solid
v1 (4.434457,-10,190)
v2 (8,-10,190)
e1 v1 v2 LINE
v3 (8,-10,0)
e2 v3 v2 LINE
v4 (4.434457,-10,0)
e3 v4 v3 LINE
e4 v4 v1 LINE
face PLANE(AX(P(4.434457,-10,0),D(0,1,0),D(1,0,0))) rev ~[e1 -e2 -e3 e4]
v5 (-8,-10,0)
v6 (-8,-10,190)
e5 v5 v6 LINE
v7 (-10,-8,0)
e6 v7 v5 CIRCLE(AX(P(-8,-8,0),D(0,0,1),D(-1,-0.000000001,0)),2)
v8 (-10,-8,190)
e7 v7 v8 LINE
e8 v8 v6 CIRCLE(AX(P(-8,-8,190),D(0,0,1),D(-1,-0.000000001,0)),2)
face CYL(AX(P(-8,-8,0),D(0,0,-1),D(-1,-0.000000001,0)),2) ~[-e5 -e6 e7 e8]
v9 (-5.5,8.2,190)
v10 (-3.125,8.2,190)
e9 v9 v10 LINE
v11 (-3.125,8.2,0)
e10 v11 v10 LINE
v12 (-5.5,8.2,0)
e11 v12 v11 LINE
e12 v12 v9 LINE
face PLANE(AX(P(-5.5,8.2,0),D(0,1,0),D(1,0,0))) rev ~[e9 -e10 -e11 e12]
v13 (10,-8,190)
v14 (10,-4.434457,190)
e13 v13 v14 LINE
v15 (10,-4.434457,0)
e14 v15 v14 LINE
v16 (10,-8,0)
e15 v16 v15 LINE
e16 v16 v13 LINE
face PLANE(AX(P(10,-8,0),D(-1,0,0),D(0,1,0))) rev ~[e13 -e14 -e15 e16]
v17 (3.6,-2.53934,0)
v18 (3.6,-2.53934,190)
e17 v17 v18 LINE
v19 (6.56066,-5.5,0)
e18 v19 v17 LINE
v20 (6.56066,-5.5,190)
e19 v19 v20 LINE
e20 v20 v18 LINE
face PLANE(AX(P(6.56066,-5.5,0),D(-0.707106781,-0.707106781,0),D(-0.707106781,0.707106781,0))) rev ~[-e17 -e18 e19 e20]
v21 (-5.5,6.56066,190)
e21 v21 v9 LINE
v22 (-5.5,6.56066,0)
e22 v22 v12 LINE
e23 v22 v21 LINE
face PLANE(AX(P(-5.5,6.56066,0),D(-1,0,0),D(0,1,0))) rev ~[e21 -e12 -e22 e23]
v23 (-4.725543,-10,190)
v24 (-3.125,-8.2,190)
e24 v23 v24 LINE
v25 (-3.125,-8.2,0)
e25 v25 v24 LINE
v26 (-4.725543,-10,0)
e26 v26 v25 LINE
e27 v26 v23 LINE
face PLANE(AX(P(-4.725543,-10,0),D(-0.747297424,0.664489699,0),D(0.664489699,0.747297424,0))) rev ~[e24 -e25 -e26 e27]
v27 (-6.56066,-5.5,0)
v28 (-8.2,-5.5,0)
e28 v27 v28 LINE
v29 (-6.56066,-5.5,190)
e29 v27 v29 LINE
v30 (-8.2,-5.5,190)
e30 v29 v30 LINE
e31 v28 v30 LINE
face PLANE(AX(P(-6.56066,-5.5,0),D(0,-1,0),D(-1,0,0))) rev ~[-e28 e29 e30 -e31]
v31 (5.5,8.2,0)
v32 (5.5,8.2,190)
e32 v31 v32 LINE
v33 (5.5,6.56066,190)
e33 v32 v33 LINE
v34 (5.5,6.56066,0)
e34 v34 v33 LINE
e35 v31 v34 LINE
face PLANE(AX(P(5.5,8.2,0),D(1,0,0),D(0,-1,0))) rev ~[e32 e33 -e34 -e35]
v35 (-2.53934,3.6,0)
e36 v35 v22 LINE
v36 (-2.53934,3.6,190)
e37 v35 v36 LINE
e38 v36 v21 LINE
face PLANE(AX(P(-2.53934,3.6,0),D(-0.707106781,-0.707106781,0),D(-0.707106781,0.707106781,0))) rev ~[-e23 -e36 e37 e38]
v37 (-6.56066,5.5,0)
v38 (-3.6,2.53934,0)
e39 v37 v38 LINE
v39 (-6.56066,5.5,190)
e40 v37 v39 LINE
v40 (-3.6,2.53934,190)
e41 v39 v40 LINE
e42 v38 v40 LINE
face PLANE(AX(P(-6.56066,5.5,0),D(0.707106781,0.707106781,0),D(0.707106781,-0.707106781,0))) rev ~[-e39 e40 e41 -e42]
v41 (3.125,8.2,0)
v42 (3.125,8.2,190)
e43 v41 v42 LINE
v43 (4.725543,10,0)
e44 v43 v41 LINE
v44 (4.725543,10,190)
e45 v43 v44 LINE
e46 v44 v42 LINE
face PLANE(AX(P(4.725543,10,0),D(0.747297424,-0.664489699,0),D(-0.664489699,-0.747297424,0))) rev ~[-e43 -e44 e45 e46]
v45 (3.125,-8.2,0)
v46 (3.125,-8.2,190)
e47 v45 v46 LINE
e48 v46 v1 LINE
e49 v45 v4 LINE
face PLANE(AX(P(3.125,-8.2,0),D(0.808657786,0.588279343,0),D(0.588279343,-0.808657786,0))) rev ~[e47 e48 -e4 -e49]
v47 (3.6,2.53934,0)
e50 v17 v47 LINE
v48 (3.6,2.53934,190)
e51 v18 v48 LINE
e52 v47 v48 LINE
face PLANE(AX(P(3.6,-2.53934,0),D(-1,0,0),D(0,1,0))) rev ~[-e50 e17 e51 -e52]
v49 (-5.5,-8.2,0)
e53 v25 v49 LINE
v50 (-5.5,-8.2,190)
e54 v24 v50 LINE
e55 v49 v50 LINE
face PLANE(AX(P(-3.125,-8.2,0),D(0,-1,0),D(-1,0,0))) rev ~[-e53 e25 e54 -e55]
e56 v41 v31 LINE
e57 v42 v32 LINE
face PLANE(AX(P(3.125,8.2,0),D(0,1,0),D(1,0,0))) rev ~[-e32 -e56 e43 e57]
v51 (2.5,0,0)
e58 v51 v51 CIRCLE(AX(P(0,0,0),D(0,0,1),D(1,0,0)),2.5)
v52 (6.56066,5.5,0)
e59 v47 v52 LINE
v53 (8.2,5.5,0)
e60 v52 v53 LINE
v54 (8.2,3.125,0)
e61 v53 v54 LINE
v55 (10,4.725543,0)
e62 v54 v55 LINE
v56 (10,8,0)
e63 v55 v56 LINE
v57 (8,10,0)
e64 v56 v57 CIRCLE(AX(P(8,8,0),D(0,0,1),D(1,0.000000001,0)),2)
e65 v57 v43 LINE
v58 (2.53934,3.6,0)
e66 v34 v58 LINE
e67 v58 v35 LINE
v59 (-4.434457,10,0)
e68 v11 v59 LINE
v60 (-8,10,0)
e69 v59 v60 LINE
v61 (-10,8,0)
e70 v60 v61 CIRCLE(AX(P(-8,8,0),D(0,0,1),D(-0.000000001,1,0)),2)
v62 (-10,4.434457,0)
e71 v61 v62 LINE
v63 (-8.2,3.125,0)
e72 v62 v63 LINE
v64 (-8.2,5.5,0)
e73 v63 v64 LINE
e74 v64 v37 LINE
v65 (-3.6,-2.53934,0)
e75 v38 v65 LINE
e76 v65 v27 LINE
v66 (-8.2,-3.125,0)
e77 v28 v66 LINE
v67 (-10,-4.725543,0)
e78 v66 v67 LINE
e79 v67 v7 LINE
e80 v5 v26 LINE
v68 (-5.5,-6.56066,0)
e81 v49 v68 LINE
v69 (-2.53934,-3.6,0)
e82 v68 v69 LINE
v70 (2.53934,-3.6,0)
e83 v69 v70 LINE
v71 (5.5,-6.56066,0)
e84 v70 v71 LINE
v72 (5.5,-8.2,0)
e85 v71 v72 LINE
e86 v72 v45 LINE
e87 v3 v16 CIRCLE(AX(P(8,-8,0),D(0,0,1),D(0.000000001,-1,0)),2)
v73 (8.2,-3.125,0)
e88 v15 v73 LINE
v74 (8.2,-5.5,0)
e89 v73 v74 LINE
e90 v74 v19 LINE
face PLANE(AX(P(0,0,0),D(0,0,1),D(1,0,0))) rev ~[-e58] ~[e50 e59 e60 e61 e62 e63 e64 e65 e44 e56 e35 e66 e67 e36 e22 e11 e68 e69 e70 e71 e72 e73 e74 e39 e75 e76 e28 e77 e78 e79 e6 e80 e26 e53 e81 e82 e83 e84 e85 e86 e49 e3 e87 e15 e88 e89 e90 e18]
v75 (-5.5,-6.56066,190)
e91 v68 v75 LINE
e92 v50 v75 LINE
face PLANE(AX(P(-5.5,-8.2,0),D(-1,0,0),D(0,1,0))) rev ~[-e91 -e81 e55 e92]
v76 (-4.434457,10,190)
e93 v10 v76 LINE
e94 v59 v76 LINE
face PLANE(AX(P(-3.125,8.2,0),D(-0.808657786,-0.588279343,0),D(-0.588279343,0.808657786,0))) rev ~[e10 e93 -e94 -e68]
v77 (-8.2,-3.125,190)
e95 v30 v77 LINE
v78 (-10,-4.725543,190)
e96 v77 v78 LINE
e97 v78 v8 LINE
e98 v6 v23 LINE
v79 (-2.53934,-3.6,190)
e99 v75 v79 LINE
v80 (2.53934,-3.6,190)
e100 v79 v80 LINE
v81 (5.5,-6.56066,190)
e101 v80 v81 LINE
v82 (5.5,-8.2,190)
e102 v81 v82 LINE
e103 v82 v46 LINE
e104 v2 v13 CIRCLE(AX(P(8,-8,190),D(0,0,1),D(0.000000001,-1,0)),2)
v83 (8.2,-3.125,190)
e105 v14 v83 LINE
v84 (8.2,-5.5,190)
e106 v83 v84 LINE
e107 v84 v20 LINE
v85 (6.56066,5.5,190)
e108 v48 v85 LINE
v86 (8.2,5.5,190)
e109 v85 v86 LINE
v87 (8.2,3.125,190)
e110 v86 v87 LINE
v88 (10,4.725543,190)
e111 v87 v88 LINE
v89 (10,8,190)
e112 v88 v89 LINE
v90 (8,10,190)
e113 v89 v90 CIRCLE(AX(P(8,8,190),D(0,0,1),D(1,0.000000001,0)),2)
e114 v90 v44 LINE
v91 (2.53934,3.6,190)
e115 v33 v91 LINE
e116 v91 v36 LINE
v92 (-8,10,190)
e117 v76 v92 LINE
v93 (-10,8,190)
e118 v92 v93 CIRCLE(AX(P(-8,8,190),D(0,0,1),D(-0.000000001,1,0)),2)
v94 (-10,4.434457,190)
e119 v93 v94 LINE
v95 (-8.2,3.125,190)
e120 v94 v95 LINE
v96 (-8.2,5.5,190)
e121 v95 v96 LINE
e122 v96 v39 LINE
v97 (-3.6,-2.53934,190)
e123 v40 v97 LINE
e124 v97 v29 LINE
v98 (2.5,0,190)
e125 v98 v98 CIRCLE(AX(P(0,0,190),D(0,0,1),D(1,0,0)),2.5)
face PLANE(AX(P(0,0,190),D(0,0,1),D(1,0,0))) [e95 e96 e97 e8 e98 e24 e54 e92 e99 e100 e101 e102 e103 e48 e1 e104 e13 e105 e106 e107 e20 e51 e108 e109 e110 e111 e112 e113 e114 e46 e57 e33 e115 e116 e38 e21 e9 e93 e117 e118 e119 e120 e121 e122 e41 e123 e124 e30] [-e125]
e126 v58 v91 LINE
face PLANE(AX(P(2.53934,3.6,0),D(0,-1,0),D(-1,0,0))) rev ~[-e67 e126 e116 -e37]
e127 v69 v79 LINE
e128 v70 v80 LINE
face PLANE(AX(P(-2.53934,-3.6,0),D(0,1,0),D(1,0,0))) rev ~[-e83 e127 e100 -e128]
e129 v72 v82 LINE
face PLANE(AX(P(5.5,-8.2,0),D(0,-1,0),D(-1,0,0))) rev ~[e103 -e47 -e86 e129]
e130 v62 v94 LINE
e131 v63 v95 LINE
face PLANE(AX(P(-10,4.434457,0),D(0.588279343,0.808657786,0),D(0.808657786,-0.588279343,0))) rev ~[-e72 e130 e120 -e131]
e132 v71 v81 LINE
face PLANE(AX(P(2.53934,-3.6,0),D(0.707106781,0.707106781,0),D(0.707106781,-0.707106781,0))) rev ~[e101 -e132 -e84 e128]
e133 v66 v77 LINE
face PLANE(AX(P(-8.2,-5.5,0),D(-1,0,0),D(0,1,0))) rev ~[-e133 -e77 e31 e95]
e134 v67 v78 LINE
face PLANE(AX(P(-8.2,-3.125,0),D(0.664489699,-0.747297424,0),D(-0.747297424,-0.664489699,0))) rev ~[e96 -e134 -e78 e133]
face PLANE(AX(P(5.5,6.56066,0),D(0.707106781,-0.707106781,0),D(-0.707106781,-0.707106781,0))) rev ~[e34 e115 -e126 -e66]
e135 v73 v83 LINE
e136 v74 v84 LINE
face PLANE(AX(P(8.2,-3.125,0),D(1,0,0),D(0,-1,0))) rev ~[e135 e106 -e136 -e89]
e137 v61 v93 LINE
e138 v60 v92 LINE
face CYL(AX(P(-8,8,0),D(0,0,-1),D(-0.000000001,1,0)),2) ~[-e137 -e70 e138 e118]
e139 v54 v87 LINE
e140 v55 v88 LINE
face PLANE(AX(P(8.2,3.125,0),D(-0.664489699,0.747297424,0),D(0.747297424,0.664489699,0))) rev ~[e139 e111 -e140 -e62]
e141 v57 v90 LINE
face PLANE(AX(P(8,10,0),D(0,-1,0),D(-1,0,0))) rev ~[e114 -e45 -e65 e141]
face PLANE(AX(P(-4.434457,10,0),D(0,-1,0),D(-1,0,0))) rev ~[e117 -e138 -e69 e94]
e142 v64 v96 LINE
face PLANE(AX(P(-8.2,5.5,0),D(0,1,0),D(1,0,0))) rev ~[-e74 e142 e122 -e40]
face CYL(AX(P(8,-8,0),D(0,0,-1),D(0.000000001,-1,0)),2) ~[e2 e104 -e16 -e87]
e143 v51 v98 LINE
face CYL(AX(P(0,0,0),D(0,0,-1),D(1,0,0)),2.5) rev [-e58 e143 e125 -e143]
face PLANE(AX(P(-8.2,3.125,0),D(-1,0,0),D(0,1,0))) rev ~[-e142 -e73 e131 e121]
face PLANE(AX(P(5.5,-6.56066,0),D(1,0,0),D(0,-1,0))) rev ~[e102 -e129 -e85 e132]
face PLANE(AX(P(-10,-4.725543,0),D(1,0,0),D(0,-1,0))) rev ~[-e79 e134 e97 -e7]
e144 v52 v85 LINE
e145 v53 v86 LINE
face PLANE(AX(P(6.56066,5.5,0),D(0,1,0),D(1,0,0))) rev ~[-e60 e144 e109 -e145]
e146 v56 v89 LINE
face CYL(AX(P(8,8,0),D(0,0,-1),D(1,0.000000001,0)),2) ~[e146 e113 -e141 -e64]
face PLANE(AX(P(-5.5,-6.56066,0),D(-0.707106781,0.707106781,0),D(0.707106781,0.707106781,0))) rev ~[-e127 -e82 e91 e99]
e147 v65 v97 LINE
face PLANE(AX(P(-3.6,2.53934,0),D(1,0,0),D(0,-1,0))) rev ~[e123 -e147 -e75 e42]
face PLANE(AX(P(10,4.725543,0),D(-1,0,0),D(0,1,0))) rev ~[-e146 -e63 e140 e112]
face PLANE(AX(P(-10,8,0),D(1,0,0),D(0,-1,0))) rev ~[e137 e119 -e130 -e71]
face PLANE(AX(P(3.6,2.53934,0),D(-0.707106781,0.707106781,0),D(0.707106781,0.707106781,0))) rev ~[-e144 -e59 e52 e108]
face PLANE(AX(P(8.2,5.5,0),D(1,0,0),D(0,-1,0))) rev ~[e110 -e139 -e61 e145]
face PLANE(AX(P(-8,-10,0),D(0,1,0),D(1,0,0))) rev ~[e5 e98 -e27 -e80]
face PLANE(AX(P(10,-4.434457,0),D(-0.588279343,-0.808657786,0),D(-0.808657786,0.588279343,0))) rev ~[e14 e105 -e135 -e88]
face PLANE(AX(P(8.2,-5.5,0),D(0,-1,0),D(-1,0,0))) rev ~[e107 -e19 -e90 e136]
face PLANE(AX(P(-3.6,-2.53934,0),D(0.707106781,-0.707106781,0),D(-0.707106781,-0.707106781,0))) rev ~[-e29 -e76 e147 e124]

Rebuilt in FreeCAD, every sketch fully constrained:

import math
import FreeCAD as App
import Part
import Sketcher
from FreeCAD import Vector
Q = App.Units.Quantity

doc = App.newDocument("Part")
body = doc.addObject("PartDesign::Body", "Body")

sketch1 = body.newObject("Sketcher::SketchObject", "Sketch")
sketch1.AttachmentSupport = (doc.getObject("XY_Plane"), [""])
sketch1.MapMode = "FlatFace"
sketch1.addGeometry([
    Part.LineSegment(Vector(-4.7, -10, 0), Vector(-3.1, -8.2, 0)),
    Part.LineSegment(Vector(-3.1, -8.2, 0), Vector(-5.5, -8.2, 0)),
    Part.LineSegment(Vector(-5.5, -8.2, 0), Vector(-5.5, -6.6, 0)),
    Part.LineSegment(Vector(-5.5, -6.6, 0), Vector(-2.5, -3.6, 0)),
    Part.LineSegment(Vector(-2.5, -3.6, 0), Vector(2.5, -3.6, 0)),
    Part.LineSegment(Vector(2.5, -3.6, 0), Vector(5.5, -6.6, 0)),
    Part.LineSegment(Vector(5.5, -6.6, 0), Vector(5.5, -8.2, 0)),
    Part.LineSegment(Vector(5.5, -8.2, 0), Vector(3.1, -8.2, 0)),
    Part.LineSegment(Vector(3.1, -8.2, 0), Vector(4.4, -10, 0)),
    Part.LineSegment(Vector(4.4, -10, 0), Vector(8, -10, 0)),
    Part.ArcOfCircle(Part.Circle(Vector(8, -8, 0), Vector(0, 0, 1), 2), math.radians(-90), math.radians(0)),
    Part.LineSegment(Vector(10, -8, 0), Vector(10, -4.4, 0)),
    Part.LineSegment(Vector(10, -4.4, 0), Vector(8.2, -3.1, 0)),
    Part.LineSegment(Vector(8.2, -3.1, 0), Vector(8.2, -5.5, 0)),
    Part.LineSegment(Vector(8.2, -5.5, 0), Vector(6.6, -5.5, 0)),
    Part.LineSegment(Vector(6.6, -5.5, 0), Vector(3.6, -2.5, 0)),
    Part.LineSegment(Vector(3.6, -2.5, 0), Vector(3.6, 2.5, 0)),
    Part.LineSegment(Vector(3.6, 2.5, 0), Vector(6.6, 5.5, 0)),
    Part.LineSegment(Vector(6.6, 5.5, 0), Vector(8.2, 5.5, 0)),
    Part.LineSegment(Vector(8.2, 5.5, 0), Vector(8.2, 3.1, 0)),
    Part.LineSegment(Vector(8.2, 3.1, 0), Vector(10, 4.7, 0)),
    Part.LineSegment(Vector(10, 4.7, 0), Vector(10, 8, 0)),
    Part.ArcOfCircle(Part.Circle(Vector(8, 8, 0), Vector(0, 0, 1), 2), math.radians(0), math.radians(90)),
    Part.LineSegment(Vector(8, 10, 0), Vector(4.7, 10, 0)),
    Part.LineSegment(Vector(4.7, 10, 0), Vector(3.1, 8.2, 0)),
    Part.LineSegment(Vector(3.1, 8.2, 0), Vector(5.5, 8.2, 0)),
    Part.LineSegment(Vector(5.5, 8.2, 0), Vector(5.5, 6.6, 0)),
    Part.LineSegment(Vector(5.5, 6.6, 0), Vector(2.5, 3.6, 0)),
    Part.LineSegment(Vector(2.5, 3.6, 0), Vector(-2.5, 3.6, 0)),
    Part.LineSegment(Vector(-2.5, 3.6, 0), Vector(-5.5, 6.6, 0)),
    Part.LineSegment(Vector(-5.5, 6.6, 0), Vector(-5.5, 8.2, 0)),
    Part.LineSegment(Vector(-5.5, 8.2, 0), Vector(-3.1, 8.2, 0)),
    Part.LineSegment(Vector(-3.1, 8.2, 0), Vector(-4.4, 10, 0)),
    Part.LineSegment(Vector(-4.4, 10, 0), Vector(-8, 10, 0)),
    Part.ArcOfCircle(Part.Circle(Vector(-8, 8, 0), Vector(0, 0, 1), 2), math.radians(90), math.radians(180)),
    Part.LineSegment(Vector(-10, 8, 0), Vector(-10, 4.4, 0)),
    Part.LineSegment(Vector(-10, 4.4, 0), Vector(-8.2, 3.1, 0)),
    Part.LineSegment(Vector(-8.2, 3.1, 0), Vector(-8.2, 5.5, 0)),
    Part.LineSegment(Vector(-8.2, 5.5, 0), Vector(-6.6, 5.5, 0)),
    Part.LineSegment(Vector(-6.6, 5.5, 0), Vector(-3.6, 2.5, 0)),
    Part.LineSegment(Vector(-3.6, 2.5, 0), Vector(-3.6, -2.5, 0)),
    Part.LineSegment(Vector(-3.6, -2.5, 0), Vector(-6.6, -5.5, 0)),
    Part.LineSegment(Vector(-6.6, -5.5, 0), Vector(-8.2, -5.5, 0)),
    Part.LineSegment(Vector(-8.2, -5.5, 0), Vector(-8.2, -3.1, 0)),
    Part.LineSegment(Vector(-8.2, -3.1, 0), Vector(-10, -4.7, 0)),
    Part.LineSegment(Vector(-10, -4.7, 0), Vector(-10, -8, 0)),
    Part.ArcOfCircle(Part.Circle(Vector(-8, -8, 0), Vector(0, 0, 1), 2), math.radians(-180), math.radians(-90)),
    Part.LineSegment(Vector(-8, -10, 0), Vector(-4.7, -10, 0)),
    Part.Circle(Vector(0, 0, 0), Vector(0, 0, 1), 2.5),
], False)
sketch1.addConstraint([
    Sketcher.Constraint("Coincident", 0, 2, 1, 1),
    Sketcher.Constraint("Coincident", 1, 2, 2, 1),
    Sketcher.Constraint("Coincident", 2, 2, 3, 1),
    Sketcher.Constraint("Coincident", 3, 2, 4, 1),
    Sketcher.Constraint("Coincident", 4, 2, 5, 1),
    Sketcher.Constraint("Coincident", 5, 2, 6, 1),
    Sketcher.Constraint("Coincident", 6, 2, 7, 1),
    Sketcher.Constraint("Coincident", 7, 2, 8, 1),
    Sketcher.Constraint("Coincident", 8, 2, 9, 1),
    Sketcher.Constraint("Tangent", 9, 2, 10, 1),
    Sketcher.Constraint("Tangent", 10, 2, 11, 1),
    Sketcher.Constraint("Coincident", 11, 2, 12, 1),
    Sketcher.Constraint("Coincident", 12, 2, 13, 1),
    Sketcher.Constraint("Coincident", 13, 2, 14, 1),
    Sketcher.Constraint("Coincident", 14, 2, 15, 1),
    Sketcher.Constraint("Coincident", 15, 2, 16, 1),
    Sketcher.Constraint("Coincident", 16, 2, 17, 1),
    Sketcher.Constraint("Coincident", 17, 2, 18, 1),
    Sketcher.Constraint("Coincident", 18, 2, 19, 1),
    Sketcher.Constraint("Coincident", 19, 2, 20, 1),
    Sketcher.Constraint("Coincident", 20, 2, 21, 1),
    Sketcher.Constraint("Tangent", 21, 2, 22, 1),
    Sketcher.Constraint("Tangent", 22, 2, 23, 1),
    Sketcher.Constraint("Coincident", 23, 2, 24, 1),
    Sketcher.Constraint("Coincident", 24, 2, 25, 1),
    Sketcher.Constraint("Coincident", 25, 2, 26, 1),
    Sketcher.Constraint("Coincident", 26, 2, 27, 1),
    Sketcher.Constraint("Coincident", 27, 2, 28, 1),
    Sketcher.Constraint("Coincident", 28, 2, 29, 1),
    Sketcher.Constraint("Coincident", 29, 2, 30, 1),
    Sketcher.Constraint("Coincident", 30, 2, 31, 1),
    Sketcher.Constraint("Coincident", 31, 2, 32, 1),
    Sketcher.Constraint("Coincident", 32, 2, 33, 1),
    Sketcher.Constraint("Tangent", 33, 2, 34, 1),
    Sketcher.Constraint("Tangent", 34, 2, 35, 1),
    Sketcher.Constraint("Coincident", 35, 2, 36, 1),
    Sketcher.Constraint("Coincident", 36, 2, 37, 1),
    Sketcher.Constraint("Coincident", 37, 2, 38, 1),
    Sketcher.Constraint("Coincident", 38, 2, 39, 1),
    Sketcher.Constraint("Coincident", 39, 2, 40, 1),
    Sketcher.Constraint("Coincident", 40, 2, 41, 1),
    Sketcher.Constraint("Coincident", 41, 2, 42, 1),
    Sketcher.Constraint("Coincident", 42, 2, 43, 1),
    Sketcher.Constraint("Coincident", 43, 2, 44, 1),
    Sketcher.Constraint("Coincident", 44, 2, 45, 1),
    Sketcher.Constraint("Tangent", 45, 2, 46, 1),
    Sketcher.Constraint("Tangent", 46, 2, 47, 1),
    Sketcher.Constraint("Coincident", 47, 2, 0, 1),
    Sketcher.Constraint("Horizontal", 1),
    Sketcher.Constraint("Vertical", 2),
    Sketcher.Constraint("Horizontal", 4),
    Sketcher.Constraint("Vertical", 6),
    Sketcher.Constraint("Horizontal", 7),
    Sketcher.Constraint("Horizontal", 9),
    Sketcher.Constraint("Vertical", 11),
    Sketcher.Constraint("Vertical", 13),
    Sketcher.Constraint("Horizontal", 14),
    Sketcher.Constraint("Vertical", 16),
    Sketcher.Constraint("Horizontal", 18),
    Sketcher.Constraint("Vertical", 19),
    Sketcher.Constraint("Vertical", 21),
    Sketcher.Constraint("Horizontal", 23),
    Sketcher.Constraint("Horizontal", 25),
    Sketcher.Constraint("Vertical", 26),
    Sketcher.Constraint("Horizontal", 28),
    Sketcher.Constraint("Vertical", 30),
    Sketcher.Constraint("Horizontal", 31),
    Sketcher.Constraint("Horizontal", 33),
    Sketcher.Constraint("Vertical", 35),
    Sketcher.Constraint("Vertical", 37),
    Sketcher.Constraint("Horizontal", 38),
    Sketcher.Constraint("Vertical", 40),
    Sketcher.Constraint("Horizontal", 42),
    Sketcher.Constraint("Vertical", 43),
    Sketcher.Constraint("Vertical", 45),
    Sketcher.Constraint("Horizontal", 47),
    Sketcher.Constraint("Coincident", 48, 3, -1, 1),
    Sketcher.Constraint("Equal", 10, 22),
    Sketcher.Constraint("Equal", 22, 34),
    Sketcher.Constraint("Equal", 34, 46),
    Sketcher.Constraint("Symmetric", 10, 3, 34, 3, -1, 1),
    Sketcher.Constraint("Symmetric", 22, 3, 46, 3, -1, 1),
    Sketcher.Constraint("Symmetric", 0, 2, 24, 2, -1, 1),
    Sketcher.Constraint("Symmetric", 2, 2, 26, 2, -1, 1),
    Sketcher.Constraint("Symmetric", 3, 2, 27, 2, -1, 1),
    Sketcher.Constraint("Symmetric", 5, 2, 29, 2, -1, 1),
    Sketcher.Constraint("Symmetric", 7, 2, 31, 2, -1, 1),
    Sketcher.Constraint("Symmetric", 12, 2, 36, 2, -1, 1),
    Sketcher.Constraint("Symmetric", 14, 2, 38, 2, -1, 1),
    Sketcher.Constraint("Symmetric", 15, 2, 39, 2, -1, 1),
    Sketcher.Constraint("Symmetric", 17, 2, 41, 2, -1, 1),
    Sketcher.Constraint("Symmetric", 19, 2, 43, 2, -1, 1),
    Sketcher.Constraint("Symmetric", 22, 3, 34, 3, -2),
    Sketcher.Constraint("Symmetric", 2, 2, 5, 2, -2),
    Sketcher.Constraint("Symmetric", 0, 2, 7, 2, -2),
    Sketcher.Constraint("Symmetric", 19, 2, 36, 2, -2),
    Sketcher.Constraint("Symmetric", 17, 2, 38, 2, -2),
    Sketcher.Constraint("Perpendicular", 3, 5),
    Sketcher.Constraint("Parallel", 5, 15),
    Sketcher.Constraint("Perpendicular", 15, 17),
    Sketcher.Constraint("Parallel", 0, 24),
    Sketcher.Constraint("Perpendicular", 27, 29),
    Sketcher.Constraint("Parallel", 8, 32),
    Sketcher.Constraint("Parallel", 12, 36),
    Sketcher.Constraint("Perpendicular", 39, 41),
    Sketcher.Constraint("Parallel", 20, 44),
    Sketcher.Constraint("Horizontal", 16, 2, 39, 2),
    Sketcher.Constraint("Equal", 42, 2),
    Sketcher.Constraint("Equal", 33, 11),
    Sketcher.Constraint("Equal", 31, 13),
    Sketcher.Constraint("Equal", 28, 16),
    Sketcher.Constraint("Equal", 47, 21),
    Sketcher.Constraint("Equal", 8, 12),
    Sketcher.Constraint("Equal", 5, 15),
    Sketcher.Constraint("Equal", 0, 20),
    Sketcher.Constraint("Diameter", 48, Q("5 mm")),
    Sketcher.Constraint("Radius", 10, Q("2 mm")),
    Sketcher.Constraint("DistanceX", -1, 1, 10, 3, Q("8 mm")),
    Sketcher.Constraint("DistanceY", 0, 2, -1, 1, Q("8.2 mm")),
    Sketcher.Constraint("DistanceX", 1, 2, -1, 1, Q("5.5 mm")),
    Sketcher.Constraint("DistanceY", 3, 2, -1, 1, Q("3.6 mm")),
    Sketcher.Constraint("DistanceX", 1, 2, 1, 1, Q("2.375 mm")),
    Sketcher.Constraint("DistanceX", 4, 1, 4, 2, Q("5.07868 mm")),
    Sketcher.Constraint("Distance", 0, Q("2.40868 mm")),
    Sketcher.Constraint("Distance", 8, Q("2.225911 mm")),
])
pad1 = body.newObject("PartDesign::Pad", "Pad")
pad1.Profile = sketch1
pad1.Length = 190

doc.recompute()
